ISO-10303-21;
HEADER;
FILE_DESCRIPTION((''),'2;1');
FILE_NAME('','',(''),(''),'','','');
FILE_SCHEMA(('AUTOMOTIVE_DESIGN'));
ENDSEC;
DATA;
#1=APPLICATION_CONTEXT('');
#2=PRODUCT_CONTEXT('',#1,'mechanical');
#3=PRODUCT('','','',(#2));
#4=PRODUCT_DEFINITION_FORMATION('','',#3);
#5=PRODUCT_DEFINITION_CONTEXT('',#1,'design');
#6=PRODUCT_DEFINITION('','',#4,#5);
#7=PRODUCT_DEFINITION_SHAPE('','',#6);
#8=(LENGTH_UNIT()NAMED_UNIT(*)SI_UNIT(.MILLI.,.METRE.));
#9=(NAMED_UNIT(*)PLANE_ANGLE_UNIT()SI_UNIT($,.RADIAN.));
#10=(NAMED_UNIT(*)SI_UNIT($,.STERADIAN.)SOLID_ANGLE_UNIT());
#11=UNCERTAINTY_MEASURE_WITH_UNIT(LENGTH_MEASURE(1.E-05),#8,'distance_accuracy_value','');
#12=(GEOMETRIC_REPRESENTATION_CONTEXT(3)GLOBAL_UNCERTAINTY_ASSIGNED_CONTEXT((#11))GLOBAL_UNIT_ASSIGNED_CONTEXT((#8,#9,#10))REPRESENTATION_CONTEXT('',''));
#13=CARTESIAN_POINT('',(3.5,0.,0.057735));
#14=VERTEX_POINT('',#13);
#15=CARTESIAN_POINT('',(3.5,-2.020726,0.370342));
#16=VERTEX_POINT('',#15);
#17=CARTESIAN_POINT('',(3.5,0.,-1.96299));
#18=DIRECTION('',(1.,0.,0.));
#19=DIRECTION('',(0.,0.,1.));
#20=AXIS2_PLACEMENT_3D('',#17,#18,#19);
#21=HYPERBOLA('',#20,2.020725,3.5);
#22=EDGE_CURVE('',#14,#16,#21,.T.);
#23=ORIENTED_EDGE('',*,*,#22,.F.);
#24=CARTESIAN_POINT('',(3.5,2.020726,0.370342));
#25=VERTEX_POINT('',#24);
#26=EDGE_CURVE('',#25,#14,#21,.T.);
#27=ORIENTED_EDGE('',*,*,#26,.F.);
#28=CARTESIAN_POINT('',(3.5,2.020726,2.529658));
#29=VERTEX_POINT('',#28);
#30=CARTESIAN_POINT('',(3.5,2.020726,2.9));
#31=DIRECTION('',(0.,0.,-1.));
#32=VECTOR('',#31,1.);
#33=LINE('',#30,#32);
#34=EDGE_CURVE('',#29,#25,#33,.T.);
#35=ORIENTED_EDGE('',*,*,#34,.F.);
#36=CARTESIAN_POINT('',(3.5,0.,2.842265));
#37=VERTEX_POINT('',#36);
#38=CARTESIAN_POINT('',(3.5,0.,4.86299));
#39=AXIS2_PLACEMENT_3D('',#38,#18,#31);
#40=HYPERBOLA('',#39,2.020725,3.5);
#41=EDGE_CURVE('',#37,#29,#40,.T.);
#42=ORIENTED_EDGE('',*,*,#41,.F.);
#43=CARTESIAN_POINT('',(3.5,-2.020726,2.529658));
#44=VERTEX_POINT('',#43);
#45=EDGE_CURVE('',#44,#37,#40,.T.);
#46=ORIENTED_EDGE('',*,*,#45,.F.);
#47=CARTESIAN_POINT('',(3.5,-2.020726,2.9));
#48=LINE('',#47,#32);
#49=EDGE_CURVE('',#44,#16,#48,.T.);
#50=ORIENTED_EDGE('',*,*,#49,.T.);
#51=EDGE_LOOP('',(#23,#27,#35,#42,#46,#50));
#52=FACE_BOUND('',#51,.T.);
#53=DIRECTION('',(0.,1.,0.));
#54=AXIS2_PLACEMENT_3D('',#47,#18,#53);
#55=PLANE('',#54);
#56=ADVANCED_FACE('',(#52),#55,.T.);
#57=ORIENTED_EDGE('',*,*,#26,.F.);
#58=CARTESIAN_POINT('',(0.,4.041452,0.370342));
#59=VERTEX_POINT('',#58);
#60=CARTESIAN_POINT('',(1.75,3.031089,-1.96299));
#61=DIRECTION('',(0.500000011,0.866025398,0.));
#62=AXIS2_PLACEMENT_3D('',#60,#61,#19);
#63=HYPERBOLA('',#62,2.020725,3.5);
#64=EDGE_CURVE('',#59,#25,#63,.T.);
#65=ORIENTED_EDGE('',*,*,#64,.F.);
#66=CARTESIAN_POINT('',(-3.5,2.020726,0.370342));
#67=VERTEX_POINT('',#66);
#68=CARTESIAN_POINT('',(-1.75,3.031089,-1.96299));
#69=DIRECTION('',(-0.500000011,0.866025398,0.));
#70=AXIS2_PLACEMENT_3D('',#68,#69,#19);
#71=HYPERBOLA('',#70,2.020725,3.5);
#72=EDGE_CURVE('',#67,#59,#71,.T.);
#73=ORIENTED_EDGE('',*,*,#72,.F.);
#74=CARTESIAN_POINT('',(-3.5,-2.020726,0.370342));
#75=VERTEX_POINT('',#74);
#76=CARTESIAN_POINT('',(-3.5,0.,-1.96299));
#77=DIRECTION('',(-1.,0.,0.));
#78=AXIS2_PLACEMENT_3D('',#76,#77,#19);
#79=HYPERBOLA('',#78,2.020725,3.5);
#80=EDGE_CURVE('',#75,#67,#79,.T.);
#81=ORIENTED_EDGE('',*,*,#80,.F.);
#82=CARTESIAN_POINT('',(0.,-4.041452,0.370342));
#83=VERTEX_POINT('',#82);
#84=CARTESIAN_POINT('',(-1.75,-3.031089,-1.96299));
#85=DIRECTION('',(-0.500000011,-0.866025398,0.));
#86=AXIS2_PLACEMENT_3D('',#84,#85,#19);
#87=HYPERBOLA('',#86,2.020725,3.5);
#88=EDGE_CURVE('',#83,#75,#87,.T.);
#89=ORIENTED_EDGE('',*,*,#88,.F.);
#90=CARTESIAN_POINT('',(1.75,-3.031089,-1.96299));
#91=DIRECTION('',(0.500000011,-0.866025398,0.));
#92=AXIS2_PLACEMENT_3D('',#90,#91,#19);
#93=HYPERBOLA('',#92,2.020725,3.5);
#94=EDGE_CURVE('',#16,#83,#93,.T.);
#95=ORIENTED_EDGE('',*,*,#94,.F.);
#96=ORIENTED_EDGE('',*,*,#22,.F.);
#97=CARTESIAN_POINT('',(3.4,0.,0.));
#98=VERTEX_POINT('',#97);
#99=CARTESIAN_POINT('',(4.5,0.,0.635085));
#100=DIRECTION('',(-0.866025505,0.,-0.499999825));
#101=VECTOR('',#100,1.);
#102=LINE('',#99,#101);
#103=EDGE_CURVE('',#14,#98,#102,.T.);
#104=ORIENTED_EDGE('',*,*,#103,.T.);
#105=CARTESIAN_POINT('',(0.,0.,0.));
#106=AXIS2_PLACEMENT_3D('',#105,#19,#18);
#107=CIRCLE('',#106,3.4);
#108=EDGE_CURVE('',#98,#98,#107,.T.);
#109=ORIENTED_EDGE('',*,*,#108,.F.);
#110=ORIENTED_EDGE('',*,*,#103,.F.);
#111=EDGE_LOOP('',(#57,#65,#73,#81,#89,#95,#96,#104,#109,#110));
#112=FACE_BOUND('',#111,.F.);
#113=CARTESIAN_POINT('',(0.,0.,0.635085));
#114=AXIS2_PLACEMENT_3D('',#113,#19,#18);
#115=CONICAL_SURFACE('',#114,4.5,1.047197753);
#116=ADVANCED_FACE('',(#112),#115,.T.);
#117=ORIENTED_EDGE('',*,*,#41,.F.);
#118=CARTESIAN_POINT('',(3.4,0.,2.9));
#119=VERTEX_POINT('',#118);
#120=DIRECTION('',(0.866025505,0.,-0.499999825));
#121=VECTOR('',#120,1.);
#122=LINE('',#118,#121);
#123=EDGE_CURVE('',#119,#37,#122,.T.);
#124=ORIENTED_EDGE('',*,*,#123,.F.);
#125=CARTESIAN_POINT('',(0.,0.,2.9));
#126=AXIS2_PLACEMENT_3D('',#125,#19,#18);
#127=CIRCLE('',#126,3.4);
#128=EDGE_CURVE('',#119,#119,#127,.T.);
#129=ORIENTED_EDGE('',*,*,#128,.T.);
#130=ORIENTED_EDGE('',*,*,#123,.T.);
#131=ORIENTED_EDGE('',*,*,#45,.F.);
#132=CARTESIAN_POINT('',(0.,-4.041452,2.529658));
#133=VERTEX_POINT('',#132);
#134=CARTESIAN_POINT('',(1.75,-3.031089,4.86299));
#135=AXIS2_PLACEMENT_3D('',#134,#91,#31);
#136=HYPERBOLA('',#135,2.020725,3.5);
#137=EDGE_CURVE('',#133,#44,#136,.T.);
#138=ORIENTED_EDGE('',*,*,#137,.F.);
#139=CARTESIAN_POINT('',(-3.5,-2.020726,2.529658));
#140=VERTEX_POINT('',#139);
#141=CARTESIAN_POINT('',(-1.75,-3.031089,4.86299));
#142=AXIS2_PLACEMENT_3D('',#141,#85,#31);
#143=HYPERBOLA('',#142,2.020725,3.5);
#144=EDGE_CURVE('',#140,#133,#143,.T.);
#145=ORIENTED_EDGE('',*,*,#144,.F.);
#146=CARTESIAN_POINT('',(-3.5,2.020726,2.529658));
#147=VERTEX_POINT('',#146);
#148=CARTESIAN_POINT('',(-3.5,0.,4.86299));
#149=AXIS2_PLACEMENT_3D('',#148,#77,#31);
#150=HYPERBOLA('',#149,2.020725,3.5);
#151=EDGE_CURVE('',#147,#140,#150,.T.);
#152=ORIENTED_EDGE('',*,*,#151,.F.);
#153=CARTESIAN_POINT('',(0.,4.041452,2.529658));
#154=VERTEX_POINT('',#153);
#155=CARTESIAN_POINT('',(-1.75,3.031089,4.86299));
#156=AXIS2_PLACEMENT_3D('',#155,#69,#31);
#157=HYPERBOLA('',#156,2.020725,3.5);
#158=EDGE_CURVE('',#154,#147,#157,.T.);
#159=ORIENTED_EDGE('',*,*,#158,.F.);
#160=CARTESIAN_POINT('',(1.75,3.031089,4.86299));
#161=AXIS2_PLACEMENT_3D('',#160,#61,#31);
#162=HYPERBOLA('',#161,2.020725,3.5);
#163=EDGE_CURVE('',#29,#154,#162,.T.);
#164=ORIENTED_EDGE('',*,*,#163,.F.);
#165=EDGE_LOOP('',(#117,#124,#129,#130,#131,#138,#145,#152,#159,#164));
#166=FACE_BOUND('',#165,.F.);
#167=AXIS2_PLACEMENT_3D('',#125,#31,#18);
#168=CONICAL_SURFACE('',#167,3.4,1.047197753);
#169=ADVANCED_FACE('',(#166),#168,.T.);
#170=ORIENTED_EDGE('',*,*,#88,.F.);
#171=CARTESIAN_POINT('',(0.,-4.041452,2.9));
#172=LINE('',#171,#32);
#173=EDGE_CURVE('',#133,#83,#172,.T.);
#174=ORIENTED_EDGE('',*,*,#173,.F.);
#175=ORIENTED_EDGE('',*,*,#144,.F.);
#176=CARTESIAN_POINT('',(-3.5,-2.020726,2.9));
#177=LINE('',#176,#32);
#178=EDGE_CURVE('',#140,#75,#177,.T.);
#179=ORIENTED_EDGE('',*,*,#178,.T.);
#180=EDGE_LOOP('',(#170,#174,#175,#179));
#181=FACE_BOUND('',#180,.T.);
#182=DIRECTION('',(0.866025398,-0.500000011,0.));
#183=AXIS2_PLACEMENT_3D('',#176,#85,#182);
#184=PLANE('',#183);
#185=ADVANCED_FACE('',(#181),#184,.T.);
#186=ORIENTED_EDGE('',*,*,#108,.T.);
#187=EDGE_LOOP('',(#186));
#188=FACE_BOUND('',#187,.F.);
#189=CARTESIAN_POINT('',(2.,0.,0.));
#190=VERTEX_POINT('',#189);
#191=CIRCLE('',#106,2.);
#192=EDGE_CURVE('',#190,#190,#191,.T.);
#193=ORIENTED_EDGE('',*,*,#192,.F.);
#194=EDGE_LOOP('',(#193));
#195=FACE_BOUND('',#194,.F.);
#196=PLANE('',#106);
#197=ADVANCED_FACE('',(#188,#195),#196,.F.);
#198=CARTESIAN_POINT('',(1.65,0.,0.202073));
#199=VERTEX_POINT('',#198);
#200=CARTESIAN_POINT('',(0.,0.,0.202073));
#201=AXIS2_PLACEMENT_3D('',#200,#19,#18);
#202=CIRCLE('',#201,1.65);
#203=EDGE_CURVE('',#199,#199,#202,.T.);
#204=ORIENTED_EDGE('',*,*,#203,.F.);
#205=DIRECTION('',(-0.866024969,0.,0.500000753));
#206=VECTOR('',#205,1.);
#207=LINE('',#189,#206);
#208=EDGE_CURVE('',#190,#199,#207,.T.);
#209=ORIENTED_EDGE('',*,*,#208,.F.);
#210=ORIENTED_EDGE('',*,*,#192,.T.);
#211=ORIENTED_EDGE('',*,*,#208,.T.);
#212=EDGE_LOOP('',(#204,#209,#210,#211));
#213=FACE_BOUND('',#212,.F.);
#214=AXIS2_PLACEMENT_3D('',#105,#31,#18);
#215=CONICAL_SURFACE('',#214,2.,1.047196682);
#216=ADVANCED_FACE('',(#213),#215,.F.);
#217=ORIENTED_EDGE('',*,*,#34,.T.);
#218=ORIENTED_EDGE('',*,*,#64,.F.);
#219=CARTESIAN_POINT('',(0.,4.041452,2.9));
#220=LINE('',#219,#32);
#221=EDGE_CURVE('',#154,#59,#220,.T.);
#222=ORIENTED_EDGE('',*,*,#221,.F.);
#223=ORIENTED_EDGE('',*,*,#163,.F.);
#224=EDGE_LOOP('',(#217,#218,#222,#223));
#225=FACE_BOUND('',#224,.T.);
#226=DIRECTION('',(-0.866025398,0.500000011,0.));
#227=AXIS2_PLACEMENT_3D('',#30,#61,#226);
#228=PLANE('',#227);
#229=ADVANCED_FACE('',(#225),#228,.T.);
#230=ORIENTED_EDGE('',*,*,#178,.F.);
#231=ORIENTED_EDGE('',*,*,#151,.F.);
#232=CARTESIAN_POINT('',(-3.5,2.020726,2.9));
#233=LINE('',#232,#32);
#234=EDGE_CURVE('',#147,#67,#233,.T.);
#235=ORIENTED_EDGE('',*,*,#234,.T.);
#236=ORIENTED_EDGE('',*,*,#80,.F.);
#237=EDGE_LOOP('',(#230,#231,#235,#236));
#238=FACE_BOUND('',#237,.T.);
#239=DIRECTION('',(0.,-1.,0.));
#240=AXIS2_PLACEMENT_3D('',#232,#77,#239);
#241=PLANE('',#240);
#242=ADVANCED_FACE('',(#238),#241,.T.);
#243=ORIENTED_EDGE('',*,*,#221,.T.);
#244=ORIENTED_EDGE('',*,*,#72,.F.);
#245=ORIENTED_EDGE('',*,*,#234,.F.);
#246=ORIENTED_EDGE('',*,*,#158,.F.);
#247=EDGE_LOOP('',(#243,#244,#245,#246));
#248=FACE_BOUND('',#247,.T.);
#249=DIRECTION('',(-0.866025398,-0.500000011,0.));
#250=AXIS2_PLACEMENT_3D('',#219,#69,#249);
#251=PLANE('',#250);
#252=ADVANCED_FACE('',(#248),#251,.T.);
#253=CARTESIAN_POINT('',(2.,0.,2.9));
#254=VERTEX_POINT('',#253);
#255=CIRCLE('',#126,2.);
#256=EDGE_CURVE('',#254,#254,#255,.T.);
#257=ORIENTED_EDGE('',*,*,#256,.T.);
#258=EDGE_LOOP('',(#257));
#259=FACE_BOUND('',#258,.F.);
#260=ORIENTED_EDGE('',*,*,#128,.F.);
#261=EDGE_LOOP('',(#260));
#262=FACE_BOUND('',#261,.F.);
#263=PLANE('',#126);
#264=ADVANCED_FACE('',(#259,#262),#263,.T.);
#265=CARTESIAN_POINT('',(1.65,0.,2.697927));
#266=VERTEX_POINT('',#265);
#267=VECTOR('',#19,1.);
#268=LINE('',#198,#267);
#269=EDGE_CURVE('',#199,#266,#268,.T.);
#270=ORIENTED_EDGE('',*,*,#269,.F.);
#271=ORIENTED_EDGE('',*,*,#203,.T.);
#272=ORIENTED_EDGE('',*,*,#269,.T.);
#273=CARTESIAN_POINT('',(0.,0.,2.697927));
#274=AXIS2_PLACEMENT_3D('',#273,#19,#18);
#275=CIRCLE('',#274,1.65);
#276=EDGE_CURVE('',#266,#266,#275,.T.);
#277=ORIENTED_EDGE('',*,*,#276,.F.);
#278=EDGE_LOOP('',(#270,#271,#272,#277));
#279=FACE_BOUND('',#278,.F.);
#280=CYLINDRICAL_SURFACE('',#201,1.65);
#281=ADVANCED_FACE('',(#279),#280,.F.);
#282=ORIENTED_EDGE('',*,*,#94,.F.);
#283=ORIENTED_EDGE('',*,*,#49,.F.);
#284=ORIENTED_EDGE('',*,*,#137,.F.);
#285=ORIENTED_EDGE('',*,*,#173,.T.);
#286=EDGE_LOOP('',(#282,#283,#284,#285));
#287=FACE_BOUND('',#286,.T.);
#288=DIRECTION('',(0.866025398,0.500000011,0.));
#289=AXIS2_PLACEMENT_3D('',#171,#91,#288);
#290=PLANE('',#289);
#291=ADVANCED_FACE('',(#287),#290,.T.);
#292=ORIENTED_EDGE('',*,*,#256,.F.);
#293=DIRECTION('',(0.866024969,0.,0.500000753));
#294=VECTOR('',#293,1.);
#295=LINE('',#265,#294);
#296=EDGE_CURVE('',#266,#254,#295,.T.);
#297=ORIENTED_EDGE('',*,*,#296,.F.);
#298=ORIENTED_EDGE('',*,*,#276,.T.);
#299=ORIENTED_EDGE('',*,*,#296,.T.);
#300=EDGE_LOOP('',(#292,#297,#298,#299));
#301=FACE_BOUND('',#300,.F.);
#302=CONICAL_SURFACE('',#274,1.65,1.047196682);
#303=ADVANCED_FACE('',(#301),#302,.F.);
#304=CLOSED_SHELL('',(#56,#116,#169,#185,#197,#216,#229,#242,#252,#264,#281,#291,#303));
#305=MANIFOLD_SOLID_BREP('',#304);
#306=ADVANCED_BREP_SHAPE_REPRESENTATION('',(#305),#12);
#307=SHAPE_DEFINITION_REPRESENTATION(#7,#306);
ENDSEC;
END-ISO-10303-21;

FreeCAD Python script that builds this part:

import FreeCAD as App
import Part
import Sketcher

V = App.Vector
Q = App.Units.Quantity


def add_polygon(sketch, points):
    """Adds a closed chain of lines whose ends are joined by coincident constraints."""
    first, n = sketch.GeometryCount, len(points)
    for a, b in zip(points, points[1:] + points[:1]):
        sketch.addGeometry(Part.LineSegment(App.Vector(*a, 0), App.Vector(*b, 0)), False)
    for i in range(n):
        sketch.addConstraint(Sketcher.Constraint("Coincident", first + i, 2, first + (i + 1) % n, 1))

doc = App.newDocument("Part")
body = doc.addObject("PartDesign::Body", "Body")

sketch1 = doc.addObject("Sketcher::SketchObject", "Sketch")
body.addObject(sketch1)
sketch1.AttachmentSupport = (doc.XZ_Plane, [""])
sketch1.MapMode = "FlatFace"
add_polygon(sketch1, [(1.65, 0.2), (2, 0), (3.4, 0), (4.5, 0.64), (4.5, 2.26), (3.4, 2.9), (2, 2.9), (1.65, 2.7)])
sketch1.addConstraint([
    Sketcher.Constraint("Horizontal", 1),
    Sketcher.Constraint("Vertical", 3),
    Sketcher.Constraint("Horizontal", 5),
    Sketcher.Constraint("Vertical", 7),
    Sketcher.Constraint("PointOnObject", 0, 2, -1),
    Sketcher.Constraint("Parallel", 0, 4),
    Sketcher.Constraint("Parallel", 2, 6),
    Sketcher.Constraint("Vertical", 1, 2, 4, 2),
    Sketcher.Constraint("Vertical", 0, 2, 5, 2),
    Sketcher.Constraint("Equal", 2, 4),
    Sketcher.Constraint("Angle", 2, Q("29.999988 deg")),
    Sketcher.Constraint("DistanceX", 1, 1, 1, 2, Q("1.4 mm")),
    Sketcher.Constraint("DistanceX", -1, 1, 0, 2, Q("2 mm")),
    Sketcher.Constraint("DistanceX", -1, 1, 2, 2, Q("4.5 mm")),
    Sketcher.Constraint("DistanceY", -1, 1, 4, 2, Q("2.9 mm")),
    Sketcher.Constraint("DistanceX", -1, 1, 6, 2, Q("1.65 mm")),
])
revolution = doc.addObject("PartDesign::Revolution", "Revolution")
body.addObject(revolution)
revolution.Profile = sketch1
revolution.ReferenceAxis = (sketch1, ["V_Axis"])
revolution.Angle = 360

sketch2 = doc.addObject("Sketcher::SketchObject", "Sketch001")
body.addObject(sketch2)
sketch2.AttachmentSupport = (doc.XY_Plane, [""])
sketch2.MapMode = "FlatFace"
sketch2.AttachmentOffset = App.Placement(V(0, 0, 2.9), App.Rotation())
sketch2.addGeometry(Part.Circle(V(0, 0, 0), V(0, 0, 1), 4.5), False)
add_polygon(sketch2, [(3.5, 2), (3.5, -2), (0, -4), (-3.5, -2), (-3.5, 2), (0, 4)])
sketch2.addConstraint([
    Sketcher.Constraint("Vertical", 1),
    Sketcher.Constraint("Vertical", 4),
    Sketcher.Constraint("Coincident", 0, 3, -1, 1),
    Sketcher.Constraint("Symmetric", 1, 2, 4, 2, -1, 1),
    Sketcher.Constraint("Symmetric", 2, 2, 5, 2, -1, 1),
    Sketcher.Constraint("PointOnObject", 2, 2, -2),
    Sketcher.Constraint("Parallel", 3, 6),
    Sketcher.Constraint("Horizontal", 1, 2, 3, 2),
    Sketcher.Constraint("Diameter", 0, Q("9 mm")),
    Sketcher.Constraint("Angle", 2, Q("-149.999999 deg")),
    Sketcher.Constraint("DistanceX", 3, 2, 1, 2, Q("7 mm")),
    Sketcher.Constraint("DistanceY", 1, 2, 1, 1, Q("4.041452 mm")),
])
pocket1 = doc.addObject("PartDesign::Pocket", "Pocket")
body.addObject(pocket1)
pocket1.Profile = sketch2
pocket1.Length = 2.9

doc.recompute()
